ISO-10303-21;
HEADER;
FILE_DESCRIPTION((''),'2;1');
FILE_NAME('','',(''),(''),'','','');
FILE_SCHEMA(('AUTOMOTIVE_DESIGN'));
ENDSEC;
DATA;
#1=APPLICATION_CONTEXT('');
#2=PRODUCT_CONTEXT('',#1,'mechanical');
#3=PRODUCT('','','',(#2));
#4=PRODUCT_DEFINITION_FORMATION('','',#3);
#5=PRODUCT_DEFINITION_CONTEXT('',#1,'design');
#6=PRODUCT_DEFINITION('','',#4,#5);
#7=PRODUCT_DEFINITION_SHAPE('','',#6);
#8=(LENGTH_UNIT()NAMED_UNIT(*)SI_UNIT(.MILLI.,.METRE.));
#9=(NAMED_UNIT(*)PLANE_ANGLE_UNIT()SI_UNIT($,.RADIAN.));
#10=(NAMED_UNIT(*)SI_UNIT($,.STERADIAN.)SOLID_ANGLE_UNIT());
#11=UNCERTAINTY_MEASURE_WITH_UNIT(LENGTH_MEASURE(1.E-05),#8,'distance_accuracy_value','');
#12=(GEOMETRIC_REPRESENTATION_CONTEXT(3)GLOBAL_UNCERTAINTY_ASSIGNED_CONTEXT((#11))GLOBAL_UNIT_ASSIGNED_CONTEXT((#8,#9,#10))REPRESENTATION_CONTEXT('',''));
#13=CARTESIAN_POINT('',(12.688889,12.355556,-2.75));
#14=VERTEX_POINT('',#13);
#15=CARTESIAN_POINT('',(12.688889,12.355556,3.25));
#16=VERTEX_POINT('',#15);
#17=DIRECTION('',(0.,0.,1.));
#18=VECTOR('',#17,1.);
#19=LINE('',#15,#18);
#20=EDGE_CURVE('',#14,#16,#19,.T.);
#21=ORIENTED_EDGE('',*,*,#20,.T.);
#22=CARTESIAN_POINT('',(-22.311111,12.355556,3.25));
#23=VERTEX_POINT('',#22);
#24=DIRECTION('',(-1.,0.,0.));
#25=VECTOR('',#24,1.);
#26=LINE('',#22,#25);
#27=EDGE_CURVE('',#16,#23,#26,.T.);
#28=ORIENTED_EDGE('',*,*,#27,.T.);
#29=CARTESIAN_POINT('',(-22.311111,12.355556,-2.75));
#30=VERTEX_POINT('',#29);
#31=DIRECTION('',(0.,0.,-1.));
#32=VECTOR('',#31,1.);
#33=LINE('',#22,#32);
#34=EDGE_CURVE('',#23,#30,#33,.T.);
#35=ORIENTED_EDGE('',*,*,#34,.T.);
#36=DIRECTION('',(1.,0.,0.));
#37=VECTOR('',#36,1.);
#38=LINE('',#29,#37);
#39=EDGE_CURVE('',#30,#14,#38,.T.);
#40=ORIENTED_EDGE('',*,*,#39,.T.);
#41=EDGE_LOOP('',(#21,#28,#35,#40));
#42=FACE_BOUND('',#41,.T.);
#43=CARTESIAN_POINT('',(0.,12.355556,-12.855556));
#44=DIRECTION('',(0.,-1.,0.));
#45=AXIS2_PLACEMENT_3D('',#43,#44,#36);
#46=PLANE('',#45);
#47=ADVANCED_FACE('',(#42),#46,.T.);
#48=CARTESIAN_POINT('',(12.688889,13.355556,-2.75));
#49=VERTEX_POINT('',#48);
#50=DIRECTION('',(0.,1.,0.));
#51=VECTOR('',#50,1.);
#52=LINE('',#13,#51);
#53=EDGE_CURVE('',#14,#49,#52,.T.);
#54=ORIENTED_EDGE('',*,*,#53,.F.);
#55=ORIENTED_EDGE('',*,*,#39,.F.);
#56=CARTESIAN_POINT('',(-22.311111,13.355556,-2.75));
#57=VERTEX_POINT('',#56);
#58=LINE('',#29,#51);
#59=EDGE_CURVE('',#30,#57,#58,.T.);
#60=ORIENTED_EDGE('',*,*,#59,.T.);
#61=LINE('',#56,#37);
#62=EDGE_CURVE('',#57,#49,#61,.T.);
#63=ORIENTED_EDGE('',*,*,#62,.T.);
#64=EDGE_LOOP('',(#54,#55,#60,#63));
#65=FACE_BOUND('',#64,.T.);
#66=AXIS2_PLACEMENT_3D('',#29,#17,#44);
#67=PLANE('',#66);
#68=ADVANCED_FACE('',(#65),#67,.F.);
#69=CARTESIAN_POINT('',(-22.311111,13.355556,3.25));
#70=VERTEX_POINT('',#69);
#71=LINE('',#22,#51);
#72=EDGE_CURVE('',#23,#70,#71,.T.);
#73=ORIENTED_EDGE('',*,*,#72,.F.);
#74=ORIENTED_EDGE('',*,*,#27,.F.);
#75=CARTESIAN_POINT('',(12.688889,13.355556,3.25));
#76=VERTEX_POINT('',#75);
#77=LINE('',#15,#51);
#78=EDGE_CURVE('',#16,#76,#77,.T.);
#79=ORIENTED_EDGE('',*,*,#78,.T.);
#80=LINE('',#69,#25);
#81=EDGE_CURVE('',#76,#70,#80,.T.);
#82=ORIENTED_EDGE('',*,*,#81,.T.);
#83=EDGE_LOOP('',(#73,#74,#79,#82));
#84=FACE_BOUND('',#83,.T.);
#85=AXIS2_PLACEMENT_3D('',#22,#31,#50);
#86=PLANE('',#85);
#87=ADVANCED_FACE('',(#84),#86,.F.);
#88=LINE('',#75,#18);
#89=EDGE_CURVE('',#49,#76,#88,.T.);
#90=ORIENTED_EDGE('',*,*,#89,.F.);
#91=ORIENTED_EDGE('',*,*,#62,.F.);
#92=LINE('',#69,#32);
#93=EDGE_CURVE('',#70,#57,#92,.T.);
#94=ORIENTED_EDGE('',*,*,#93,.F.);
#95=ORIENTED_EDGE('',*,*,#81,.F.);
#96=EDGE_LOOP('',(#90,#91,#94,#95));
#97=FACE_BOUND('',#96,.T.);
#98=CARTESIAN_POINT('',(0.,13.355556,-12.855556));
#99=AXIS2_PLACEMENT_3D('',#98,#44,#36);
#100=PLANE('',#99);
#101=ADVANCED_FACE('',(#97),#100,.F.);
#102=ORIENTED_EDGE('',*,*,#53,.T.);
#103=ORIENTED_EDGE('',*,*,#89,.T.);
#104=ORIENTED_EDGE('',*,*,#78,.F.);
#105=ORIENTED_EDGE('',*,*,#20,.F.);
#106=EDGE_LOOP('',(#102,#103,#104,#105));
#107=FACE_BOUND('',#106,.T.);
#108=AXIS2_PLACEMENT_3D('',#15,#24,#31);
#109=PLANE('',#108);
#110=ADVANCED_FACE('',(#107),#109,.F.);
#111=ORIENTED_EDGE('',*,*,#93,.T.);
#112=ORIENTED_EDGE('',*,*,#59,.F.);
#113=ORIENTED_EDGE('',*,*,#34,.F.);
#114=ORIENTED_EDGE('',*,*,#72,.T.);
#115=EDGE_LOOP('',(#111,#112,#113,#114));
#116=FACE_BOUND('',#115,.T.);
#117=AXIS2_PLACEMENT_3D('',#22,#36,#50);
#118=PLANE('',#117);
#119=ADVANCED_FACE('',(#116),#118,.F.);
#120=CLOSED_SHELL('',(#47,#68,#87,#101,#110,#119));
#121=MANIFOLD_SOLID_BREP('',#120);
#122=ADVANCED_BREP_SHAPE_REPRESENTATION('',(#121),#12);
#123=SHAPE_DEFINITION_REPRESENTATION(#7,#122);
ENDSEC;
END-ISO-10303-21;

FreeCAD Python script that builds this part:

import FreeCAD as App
import Part
import Sketcher
Q = App.Units.Quantity

doc = App.newDocument("Part")
body = doc.addObject("PartDesign::Body", "Body")

sketch1 = doc.addObject("Sketcher::SketchObject", "Sketch")
body.addObject(sketch1)
sketch1.AttachmentSupport = (doc.XY_Plane, [""])
sketch1.MapMode = "FlatFace"
sketch1.addGeometry([
    Part.LineSegment(App.Vector(-22, 16, 0), App.Vector(-22, 10, 0)),
    Part.LineSegment(App.Vector(-22, 10, 0), App.Vector(13, 10, 0)),
    Part.LineSegment(App.Vector(13, 10, 0), App.Vector(13, 16, 0)),
    Part.LineSegment(App.Vector(13, 16, 0), App.Vector(-22, 16, 0)),
], False)
sketch1.addConstraint([
    Sketcher.Constraint("Coincident", 0, 2, 1, 1),
    Sketcher.Constraint("Coincident", 1, 2, 2, 1),
    Sketcher.Constraint("Coincident", 2, 2, 3, 1),
    Sketcher.Constraint("Coincident", 3, 2, 0, 1),
    Sketcher.Constraint("Vertical", 0),
    Sketcher.Constraint("Horizontal", 1),
    Sketcher.Constraint("Vertical", 2),
    Sketcher.Constraint("Horizontal", 3),
    Sketcher.Constraint("DistanceX", 1, 1, 1, 2, Q("35 mm")),
    Sketcher.Constraint("DistanceY", 0, 2, 0, 1, Q("6 mm")),
    Sketcher.Constraint("DistanceX", 0, 2, -1, 1, Q("22.311111 mm")),
    Sketcher.Constraint("DistanceY", -1, 1, 0, 2, Q("10.105556 mm")),
])
pad1 = doc.addObject("PartDesign::Pad", "Pad")
body.addObject(pad1)
pad1.Profile = sketch1
pad1.Length = 1
body2 = doc.addObject("PartDesign::Body", "Body001")
doc.recompute()

body.Placement = App.Placement(App.Vector(0, 13.355556, -12.855556), App.Rotation(App.Vector(1, 0, 0), 90))
boolean = doc.addObject("PartDesign::Boolean", "Boolean")
body2.addObject(boolean)
boolean.Type = "Fuse"
boolean.addObjects([body])

doc.recompute()
